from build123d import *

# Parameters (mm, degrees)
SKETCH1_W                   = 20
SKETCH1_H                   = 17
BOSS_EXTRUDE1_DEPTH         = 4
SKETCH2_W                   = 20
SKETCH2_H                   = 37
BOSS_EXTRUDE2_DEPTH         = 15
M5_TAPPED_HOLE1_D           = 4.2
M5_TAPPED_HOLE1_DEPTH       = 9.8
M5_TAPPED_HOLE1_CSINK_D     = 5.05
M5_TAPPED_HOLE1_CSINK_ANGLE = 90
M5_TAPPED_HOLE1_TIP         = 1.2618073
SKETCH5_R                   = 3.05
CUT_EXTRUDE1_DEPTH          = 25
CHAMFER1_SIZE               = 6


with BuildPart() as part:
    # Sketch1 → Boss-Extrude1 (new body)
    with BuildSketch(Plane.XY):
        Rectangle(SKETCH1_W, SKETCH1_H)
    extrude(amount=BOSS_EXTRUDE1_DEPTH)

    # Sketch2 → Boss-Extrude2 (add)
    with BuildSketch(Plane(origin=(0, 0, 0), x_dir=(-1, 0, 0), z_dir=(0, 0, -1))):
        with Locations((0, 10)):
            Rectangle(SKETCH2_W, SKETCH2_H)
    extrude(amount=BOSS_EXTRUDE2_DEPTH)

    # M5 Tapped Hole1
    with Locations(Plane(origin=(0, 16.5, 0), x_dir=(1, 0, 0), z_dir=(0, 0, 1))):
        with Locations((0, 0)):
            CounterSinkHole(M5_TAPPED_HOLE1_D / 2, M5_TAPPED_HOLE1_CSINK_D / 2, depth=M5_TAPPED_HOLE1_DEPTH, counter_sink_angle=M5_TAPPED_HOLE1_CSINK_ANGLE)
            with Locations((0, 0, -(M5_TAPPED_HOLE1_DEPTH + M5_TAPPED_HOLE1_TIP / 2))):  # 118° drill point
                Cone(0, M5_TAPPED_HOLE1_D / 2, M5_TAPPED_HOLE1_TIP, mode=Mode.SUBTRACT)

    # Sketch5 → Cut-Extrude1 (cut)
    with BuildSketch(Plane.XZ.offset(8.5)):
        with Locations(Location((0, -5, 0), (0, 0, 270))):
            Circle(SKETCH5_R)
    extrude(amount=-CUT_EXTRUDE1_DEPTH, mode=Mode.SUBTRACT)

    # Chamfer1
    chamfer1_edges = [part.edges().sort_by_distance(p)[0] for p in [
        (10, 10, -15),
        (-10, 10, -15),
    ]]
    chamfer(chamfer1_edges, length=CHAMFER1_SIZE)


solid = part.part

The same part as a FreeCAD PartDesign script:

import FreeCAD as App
import Part
import Sketcher
from FreeCAD import Vector


def edges_at(feature, points):
    """Names of the edges that pass closest to the given points."""
    edges = feature.Shape.Edges
    near = lambda p: min(range(len(edges)), key=lambda i: edges[i].distToShape(Part.Vertex(*p))[0])
    return sorted({f"Edge{near(p) + 1}" for p in points})


def add_polygon(sketch, points):
    """Adds a closed chain of lines whose ends are joined by coincident constraints."""
    first, n = sketch.GeometryCount, len(points)
    for a, b in zip(points, points[1:] + points[:1]):
        sketch.addGeometry(Part.LineSegment(App.Vector(*a, 0), App.Vector(*b, 0)), False)
    for i in range(n):
        sketch.addConstraint(Sketcher.Constraint("Coincident", first + i, 2, first + (i + 1) % n, 1))

doc = App.newDocument("Part")
body = doc.addObject("PartDesign::Body", "Body")

sketch1 = doc.addObject("Sketcher::SketchObject", "Sketch")
body.addObject(sketch1)
sketch1.AttachmentSupport = (doc.XY_Plane, [""])
sketch1.MapMode = "FlatFace"
add_polygon(sketch1, [(-10, 8.5), (-10, -8.5), (10, -8.5), (10, 8.5)])
sketch1.addConstraint(Sketcher.Constraint("Vertical", 0))
sketch1.addConstraint(Sketcher.Constraint("Horizontal", 1))
sketch1.addConstraint(Sketcher.Constraint("Vertical", 2))
sketch1.addConstraint(Sketcher.Constraint("Horizontal", 3))
sketch1.addConstraint(Sketcher.Constraint("Symmetric", 0, 2, 2, 2, -1, 1))
sketch1.addConstraint(Sketcher.Constraint("DistanceX", 1, 1, 1, 2, 20.0))
sketch1.addConstraint(Sketcher.Constraint("DistanceY", 0, 2, 0, 1, 17.0))
pad1 = doc.addObject("PartDesign::Pad", "Pad")
body.addObject(pad1)
pad1.Profile = sketch1
pad1.Length = 4

sketch2 = doc.addObject("Sketcher::SketchObject", "Sketch001")
body.addObject(sketch2)
sketch2.AttachmentSupport = (doc.XY_Plane, [""])
sketch2.MapMode = "FlatFace"
add_polygon(sketch2, [(10, 28.5), (10, -8.5), (-10, -8.5), (-10, 28.5)])
sketch2.addConstraint(Sketcher.Constraint("Vertical", 0))
sketch2.addConstraint(Sketcher.Constraint("Horizontal", 1))
sketch2.addConstraint(Sketcher.Constraint("Vertical", 2))
sketch2.addConstraint(Sketcher.Constraint("Horizontal", 3))
sketch2.addConstraint(Sketcher.Constraint("DistanceX", 1, 2, 1, 1, 20.0))
sketch2.addConstraint(Sketcher.Constraint("DistanceY", 0, 2, 0, 1, 37.0))
sketch2.addConstraint(Sketcher.Constraint("DistanceX", -1, 1, 0, 2, 10.0))
sketch2.addConstraint(Sketcher.Constraint("DistanceY", 0, 2, -1, 1, 8.5))
pad2 = doc.addObject("PartDesign::Pad", "Pad001")
body.addObject(pad2)
pad2.Profile = sketch2
pad2.Length = 15
pad2.Reversed = True

sketch3 = doc.addObject("Sketcher::SketchObject", "Sketch002")
body.addObject(sketch3)
sketch3.AttachmentSupport = (doc.XY_Plane, [""])
sketch3.MapMode = "FlatFace"
sketch3.addGeometry(Part.Circle(Vector(0, 16.5, 0), Vector(0, 0, 1), 2.1), False)
sketch3.addConstraint(Sketcher.Constraint("PointOnObject", 0, 3, -2))
sketch3.addConstraint(Sketcher.Constraint("Diameter", 0, 4.2))
sketch3.addConstraint(Sketcher.Constraint("DistanceY", -1, 1, 0, 3, 16.5))
doc.recompute()
hole = doc.addObject("PartDesign::Hole", "Hole")
body.addObject(hole)
hole.Profile = sketch3
hole.ThreadType = "None"
hole.Diameter = 4.2
hole.DepthType = "Dimension"
hole.Depth = 9.8
hole.DrillPoint = "Angled"
hole.DrillPointAngle = 118
hole.HoleCutType = "Countersink"
hole.HoleCutDiameter = 5.05
hole.HoleCutCountersinkAngle = 90

sketch4 = doc.addObject("Sketcher::SketchObject", "Sketch003")
body.addObject(sketch4)
sketch4.AttachmentSupport = (doc.XZ_Plane, [""])
sketch4.MapMode = "FlatFace"
sketch4.AttachmentOffset = App.Placement(Vector(0, 0, 8.5), App.Rotation())
sketch4.addGeometry(Part.Circle(Vector(0, -5, 0), Vector(0, 0, 1), 3.05), False)
sketch4.addConstraint(Sketcher.Constraint("PointOnObject", 0, 3, -2))
sketch4.addConstraint(Sketcher.Constraint("Diameter", 0, 6.1))
sketch4.addConstraint(Sketcher.Constraint("DistanceY", 0, 3, -1, 1, 5.0))
pocket1 = doc.addObject("PartDesign::Pocket", "Pocket")
body.addObject(pocket1)
pocket1.Profile = sketch4
pocket1.Length = 25
doc.recompute()

chamfer = doc.addObject("PartDesign::Chamfer", "Chamfer")
body.addObject(chamfer)
chamfer.Base = (pocket1, edges_at(pocket1, [(10, 10, -15), (-10, 10, -15)]))
chamfer.Size = 6

doc.recompute()
